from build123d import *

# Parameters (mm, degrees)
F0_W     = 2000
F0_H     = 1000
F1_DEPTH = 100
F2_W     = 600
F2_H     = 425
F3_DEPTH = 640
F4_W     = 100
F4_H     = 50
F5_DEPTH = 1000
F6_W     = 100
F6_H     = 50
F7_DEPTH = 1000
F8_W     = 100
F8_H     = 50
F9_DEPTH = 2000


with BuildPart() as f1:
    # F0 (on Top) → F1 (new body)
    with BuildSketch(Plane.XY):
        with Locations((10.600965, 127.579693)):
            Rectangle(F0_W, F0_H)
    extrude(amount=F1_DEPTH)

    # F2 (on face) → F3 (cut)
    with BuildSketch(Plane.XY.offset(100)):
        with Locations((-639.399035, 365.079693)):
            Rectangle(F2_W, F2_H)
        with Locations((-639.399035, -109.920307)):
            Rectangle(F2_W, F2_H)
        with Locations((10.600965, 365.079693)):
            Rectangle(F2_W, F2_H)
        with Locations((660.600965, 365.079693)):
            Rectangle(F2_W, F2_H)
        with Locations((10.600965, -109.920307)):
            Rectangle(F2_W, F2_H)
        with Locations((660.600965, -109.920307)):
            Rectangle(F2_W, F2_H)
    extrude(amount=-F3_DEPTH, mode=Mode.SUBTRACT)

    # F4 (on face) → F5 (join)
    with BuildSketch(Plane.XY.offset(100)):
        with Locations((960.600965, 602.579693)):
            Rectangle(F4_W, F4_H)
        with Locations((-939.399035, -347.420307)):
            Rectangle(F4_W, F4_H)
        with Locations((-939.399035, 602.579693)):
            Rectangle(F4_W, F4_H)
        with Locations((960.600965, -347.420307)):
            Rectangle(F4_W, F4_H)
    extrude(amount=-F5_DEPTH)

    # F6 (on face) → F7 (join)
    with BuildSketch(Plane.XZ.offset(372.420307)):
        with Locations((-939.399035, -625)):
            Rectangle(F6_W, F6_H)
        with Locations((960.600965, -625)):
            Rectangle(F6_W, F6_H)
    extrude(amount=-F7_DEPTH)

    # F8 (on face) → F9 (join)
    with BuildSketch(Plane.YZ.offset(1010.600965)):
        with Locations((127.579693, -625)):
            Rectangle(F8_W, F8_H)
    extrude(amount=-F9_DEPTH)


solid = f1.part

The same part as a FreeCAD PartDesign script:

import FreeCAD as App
import Part
import Sketcher

V = App.Vector
Q = App.Units.Quantity

doc = App.newDocument("Part")
body = doc.addObject("PartDesign::Body", "Body")

# Sketch on XY plane
sketch1 = body.newObject("Sketcher::SketchObject", "Sketch")
sketch1.AttachmentSupport = (doc.getObject("XY_Plane"), [""])
sketch1.MapMode = "FlatFace"
sketch1.addGeometry([
    Part.LineSegment(V(-989, 628, 0), V(-989, -372, 0)),
    Part.LineSegment(V(-989, -372, 0), V(1011, -372, 0)),
    Part.LineSegment(V(1011, -372, 0), V(1011, 628, 0)),
    Part.LineSegment(V(1011, 628, 0), V(-989, 628, 0)),
], False)
sketch1.addConstraint([
    Sketcher.Constraint("Coincident", 0, 2, 1, 1),
    Sketcher.Constraint("Coincident", 1, 2, 2, 1),
    Sketcher.Constraint("Coincident", 2, 2, 3, 1),
    Sketcher.Constraint("Coincident", 3, 2, 0, 1),
    Sketcher.Constraint("Vertical", 0),
    Sketcher.Constraint("Horizontal", 1),
    Sketcher.Constraint("Vertical", 2),
    Sketcher.Constraint("Horizontal", 3),
    Sketcher.Constraint("DistanceX", 1, 1, 1, 2, Q("2000 mm")),
    Sketcher.Constraint("DistanceY", 0, 2, 0, 1, Q("1000 mm")),
    Sketcher.Constraint("DistanceX", 0, 2, -1, 1, Q("989.399035 mm")),
    Sketcher.Constraint("DistanceY", 0, 2, -1, 1, Q("372.420307 mm")),
])
pad1 = body.newObject("PartDesign::Pad", "Pad")
pad1.Profile = sketch1
pad1.Length = 100

# Sketch on XY plane
sketch2 = body.newObject("Sketcher::SketchObject", "Sketch001")
sketch2.AttachmentSupport = (doc.getObject("XY_Plane"), [""])
sketch2.MapMode = "FlatFace"
sketch2.AttachmentOffset = App.Placement(V(0, 0, 100), App.Rotation())
sketch2.addGeometry([
    Part.LineSegment(V(-939, 578, 0), V(-939, 153, 0)),  # 0
    Part.LineSegment(V(-939, 153, 0), V(-339, 153, 0)),  # 1
    Part.LineSegment(V(-339, 153, 0), V(-339, 578, 0)),  # 2
    Part.LineSegment(V(-339, 578, 0), V(-939, 578, 0)),  # 3
    Part.LineSegment(V(-939, 103, 0), V(-939, -322, 0)),  # 4
    Part.LineSegment(V(-939, -322, 0), V(-339, -322, 0)),  # 5
    Part.LineSegment(V(-339, -322, 0), V(-339, 103, 0)),  # 6
    Part.LineSegment(V(-339, 103, 0), V(-939, 103, 0)),  # 7
    Part.LineSegment(V(-289, 578, 0), V(-289, 153, 0)),  # 8
    Part.LineSegment(V(-289, 153, 0), V(311, 153, 0)),  # 9
    Part.LineSegment(V(311, 153, 0), V(311, 578, 0)),  # 10
    Part.LineSegment(V(311, 578, 0), V(-289, 578, 0)),  # 11
    Part.LineSegment(V(361, 578, 0), V(361, 153, 0)),  # 12
    Part.LineSegment(V(361, 153, 0), V(961, 153, 0)),  # 13
    Part.LineSegment(V(961, 153, 0), V(961, 578, 0)),  # 14
    Part.LineSegment(V(961, 578, 0), V(361, 578, 0)),  # 15
    Part.LineSegment(V(-289, 103, 0), V(-289, -322, 0)),  # 16
    Part.LineSegment(V(-289, -322, 0), V(311, -322, 0)),  # 17
    Part.LineSegment(V(311, -322, 0), V(311, 103, 0)),  # 18
    Part.LineSegment(V(311, 103, 0), V(-289, 103, 0)),  # 19
    Part.LineSegment(V(361, 103, 0), V(361, -322, 0)),  # 20
    Part.LineSegment(V(361, -322, 0), V(961, -322, 0)),  # 21
    Part.LineSegment(V(961, -322, 0), V(961, 103, 0)),  # 22
    Part.LineSegment(V(961, 103, 0), V(361, 103, 0)),  # 23
], False)
sketch2.addConstraint([
    Sketcher.Constraint("Coincident", 0, 2, 1, 1),
    Sketcher.Constraint("Coincident", 1, 2, 2, 1),
    Sketcher.Constraint("Coincident", 2, 2, 3, 1),
    Sketcher.Constraint("Coincident", 3, 2, 0, 1),
    Sketcher.Constraint("Coincident", 4, 2, 5, 1),
    Sketcher.Constraint("Coincident", 5, 2, 6, 1),
    Sketcher.Constraint("Coincident", 6, 2, 7, 1),
    Sketcher.Constraint("Coincident", 7, 2, 4, 1),
    Sketcher.Constraint("Coincident", 8, 2, 9, 1),
    Sketcher.Constraint("Coincident", 9, 2, 10, 1),
    Sketcher.Constraint("Coincident", 10, 2, 11, 1),
    Sketcher.Constraint("Coincident", 11, 2, 8, 1),
    Sketcher.Constraint("Coincident", 12, 2, 13, 1),
    Sketcher.Constraint("Coincident", 13, 2, 14, 1),
    Sketcher.Constraint("Coincident", 14, 2, 15, 1),
    Sketcher.Constraint("Coincident", 15, 2, 12, 1),
    Sketcher.Constraint("Coincident", 16, 2, 17, 1),
    Sketcher.Constraint("Coincident", 17, 2, 18, 1),
    Sketcher.Constraint("Coincident", 18, 2, 19, 1),
    Sketcher.Constraint("Coincident", 19, 2, 16, 1),
    Sketcher.Constraint("Coincident", 20, 2, 21, 1),
    Sketcher.Constraint("Coincident", 21, 2, 22, 1),
    Sketcher.Constraint("Coincident", 22, 2, 23, 1),
    Sketcher.Constraint("Coincident", 23, 2, 20, 1),
    Sketcher.Constraint("Vertical", 0),
    Sketcher.Constraint("Horizontal", 1),
    Sketcher.Constraint("Vertical", 2),
    Sketcher.Constraint("Horizontal", 3),
    Sketcher.Constraint("Vertical", 4),
    Sketcher.Constraint("Horizontal", 5),
    Sketcher.Constraint("Vertical", 6),
    Sketcher.Constraint("Horizontal", 7),
    Sketcher.Constraint("Vertical", 8),
    Sketcher.Constraint("Horizontal", 9),
    Sketcher.Constraint("Vertical", 10),
    Sketcher.Constraint("Horizontal", 11),
    Sketcher.Constraint("Vertical", 12),
    Sketcher.Constraint("Horizontal", 13),
    Sketcher.Constraint("Vertical", 14),
    Sketcher.Constraint("Horizontal", 15),
    Sketcher.Constraint("Vertical", 16),
    Sketcher.Constraint("Horizontal", 17),
    Sketcher.Constraint("Vertical", 18),
    Sketcher.Constraint("Horizontal", 19),
    Sketcher.Constraint("Vertical", 20),
    Sketcher.Constraint("Horizontal", 21),
    Sketcher.Constraint("Vertical", 22),
    Sketcher.Constraint("Horizontal", 23),
    Sketcher.Constraint("Horizontal", 1, 2, 8, 2),
    Sketcher.Constraint("Horizontal", 3, 2, 10, 2),
    Sketcher.Constraint("Horizontal", 9, 2, 12, 2),
    Sketcher.Constraint("Horizontal", 11, 2, 14, 2),
    Sketcher.Constraint("Horizontal", 5, 2, 16, 2),
    Sketcher.Constraint("Horizontal", 7, 2, 18, 2),
    Sketcher.Constraint("Horizontal", 17, 2, 20, 2),
    Sketcher.Constraint("Horizontal", 19, 2, 22, 2),
    Sketcher.Constraint("Vertical", 3, 2, 4, 2),
    Sketcher.Constraint("Vertical", 2, 2, 5, 2),
    Sketcher.Constraint("Vertical", 11, 2, 16, 2),
    Sketcher.Constraint("Vertical", 10, 2, 17, 2),
    Sketcher.Constraint("Vertical", 15, 2, 20, 2),
    Sketcher.Constraint("Vertical", 14, 2, 21, 2),
    Sketcher.Constraint("Equal", 7, 9),
    Sketcher.Constraint("Equal", 11, 13),
    Sketcher.Constraint("Equal", 2, 4),
    Sketcher.Constraint("DistanceX", 1, 1, 1, 2, Q("600 mm")),
    Sketcher.Constraint("DistanceY", 0, 2, 0, 1, Q("425 mm")),
    Sketcher.Constraint("DistanceY", 4, 2, 0, 2, Q("475 mm")),
    Sketcher.Constraint("DistanceX", 1, 2, 8, 2, Q("50 mm")),
    Sketcher.Constraint("DistanceX", 9, 2, 12, 2, Q("50 mm")),
    Sketcher.Constraint("DistanceX", 0, 2, -1, 1, Q("939.399035 mm")),
    Sketcher.Constraint("DistanceY", -1, 1, 0, 2, Q("152.579693 mm")),
])
pocket1 = body.newObject("PartDesign::Pocket", "Pocket")
pocket1.Profile = sketch2
pocket1.Length = 640

# Sketch on XY plane
sketch3 = body.newObject("Sketcher::SketchObject", "Sketch002")
sketch3.AttachmentSupport = (doc.getObject("XY_Plane"), [""])
sketch3.MapMode = "FlatFace"
sketch3.AttachmentOffset = App.Placement(V(0, 0, 100), App.Rotation())
sketch3.addGeometry([
    Part.LineSegment(V(911, 628, 0), V(911, 578, 0)),  # 0
    Part.LineSegment(V(911, 578, 0), V(1011, 578, 0)),  # 1
    Part.LineSegment(V(1011, 578, 0), V(1011, 628, 0)),  # 2
    Part.LineSegment(V(1011, 628, 0), V(911, 628, 0)),  # 3
    Part.LineSegment(V(-989, -322, 0), V(-989, -372, 0)),  # 4
    Part.LineSegment(V(-989, -372, 0), V(-889, -372, 0)),  # 5
    Part.LineSegment(V(-889, -372, 0), V(-889, -322, 0)),  # 6
    Part.LineSegment(V(-889, -322, 0), V(-989, -322, 0)),  # 7
    Part.LineSegment(V(-989, 628, 0), V(-989, 578, 0)),  # 8
    Part.LineSegment(V(-989, 578, 0), V(-889, 578, 0)),  # 9
    Part.LineSegment(V(-889, 578, 0), V(-889, 628, 0)),  # 10
    Part.LineSegment(V(-889, 628, 0), V(-989, 628, 0)),  # 11
    Part.LineSegment(V(911, -322, 0), V(911, -372, 0)),  # 12
    Part.LineSegment(V(911, -372, 0), V(1011, -372, 0)),  # 13
    Part.LineSegment(V(1011, -372, 0), V(1011, -322, 0)),  # 14
    Part.LineSegment(V(1011, -322, 0), V(911, -322, 0)),  # 15
], False)
sketch3.addConstraint([
    Sketcher.Constraint("Coincident", 0, 2, 1, 1),
    Sketcher.Constraint("Coincident", 1, 2, 2, 1),
    Sketcher.Constraint("Coincident", 2, 2, 3, 1),
    Sketcher.Constraint("Coincident", 3, 2, 0, 1),
    Sketcher.Constraint("Coincident", 4, 2, 5, 1),
    Sketcher.Constraint("Coincident", 5, 2, 6, 1),
    Sketcher.Constraint("Coincident", 6, 2, 7, 1),
    Sketcher.Constraint("Coincident", 7, 2, 4, 1),
    Sketcher.Constraint("Coincident", 8, 2, 9, 1),
    Sketcher.Constraint("Coincident", 9, 2, 10, 1),
    Sketcher.Constraint("Coincident", 10, 2, 11, 1),
    Sketcher.Constraint("Coincident", 11, 2, 8, 1),
    Sketcher.Constraint("Coincident", 12, 2, 13, 1),
    Sketcher.Constraint("Coincident", 13, 2, 14, 1),
    Sketcher.Constraint("Coincident", 14, 2, 15, 1),
    Sketcher.Constraint("Coincident", 15, 2, 12, 1),
    Sketcher.Constraint("Vertical", 0),
    Sketcher.Constraint("Horizontal", 1),
    Sketcher.Constraint("Vertical", 2),
    Sketcher.Constraint("Horizontal", 3),
    Sketcher.Constraint("Vertical", 4),
    Sketcher.Constraint("Horizontal", 5),
    Sketcher.Constraint("Vertical", 6),
    Sketcher.Constraint("Horizontal", 7),
    Sketcher.Constraint("Vertical", 8),
    Sketcher.Constraint("Horizontal", 9),
    Sketcher.Constraint("Vertical", 10),
    Sketcher.Constraint("Horizontal", 11),
    Sketcher.Constraint("Vertical", 12),
    Sketcher.Constraint("Horizontal", 13),
    Sketcher.Constraint("Vertical", 14),
    Sketcher.Constraint("Horizontal", 15),
    Sketcher.Constraint("Horizontal", 1, 2, 8, 2),
    Sketcher.Constraint("Horizontal", 3, 2, 10, 2),
    Sketcher.Constraint("Horizontal", 5, 2, 12, 2),
    Sketcher.Constraint("Horizontal", 7, 2, 14, 2),
    Sketcher.Constraint("Vertical", 7, 2, 8, 2),
    Sketcher.Constraint("Vertical", 6, 2, 9, 2),
    Sketcher.Constraint("Vertical", 3, 2, 12, 2),
    Sketcher.Constraint("Vertical", 2, 2, 13, 2),
    Sketcher.Constraint("Equal", 3, 5),
    Sketcher.Constraint("Equal", 2, 4),
    Sketcher.Constraint("DistanceX", 1, 1, 1, 2, Q("100 mm")),
    Sketcher.Constraint("DistanceY", 0, 2, 0, 1, Q("50 mm")),
    Sketcher.Constraint("DistanceX", 4, 2, 0, 2, Q("1900 mm")),
    Sketcher.Constraint("DistanceY", 4, 2, 0, 2, Q("950 mm")),
    Sketcher.Constraint("DistanceX", -1, 1, 0, 2, Q("910.600965 mm")),
    Sketcher.Constraint("DistanceY", -1, 1, 0, 2, Q("577.579693 mm")),
])
pad2 = body.newObject("PartDesign::Pad", "Pad001")
pad2.Profile = sketch3
pad2.Length = 1000
pad2.Reversed = True

# Sketch on XZ plane
sketch4 = body.newObject("Sketcher::SketchObject", "Sketch003")
sketch4.AttachmentSupport = (doc.getObject("XZ_Plane"), [""])
sketch4.MapMode = "FlatFace"
sketch4.AttachmentOffset = App.Placement(V(0, 0, 372.420307), App.Rotation())
sketch4.addGeometry([
    Part.LineSegment(V(-989, -600, 0), V(-989, -650, 0)),  # 0
    Part.LineSegment(V(-989, -650, 0), V(-889, -650, 0)),  # 1
    Part.LineSegment(V(-889, -650, 0), V(-889, -600, 0)),  # 2
    Part.LineSegment(V(-889, -600, 0), V(-989, -600, 0)),  # 3
    Part.LineSegment(V(911, -600, 0), V(911, -650, 0)),  # 4
    Part.LineSegment(V(911, -650, 0), V(1011, -650, 0)),  # 5
    Part.LineSegment(V(1011, -650, 0), V(1011, -600, 0)),  # 6
    Part.LineSegment(V(1011, -600, 0), V(911, -600, 0)),  # 7
], False)
sketch4.addConstraint([
    Sketcher.Constraint("Coincident", 0, 2, 1, 1),
    Sketcher.Constraint("Coincident", 1, 2, 2, 1),
    Sketcher.Constraint("Coincident", 2, 2, 3, 1),
    Sketcher.Constraint("Coincident", 3, 2, 0, 1),
    Sketcher.Constraint("Coincident", 4, 2, 5, 1),
    Sketcher.Constraint("Coincident", 5, 2, 6, 1),
    Sketcher.Constraint("Coincident", 6, 2, 7, 1),
    Sketcher.Constraint("Coincident", 7, 2, 4, 1),
    Sketcher.Constraint("Vertical", 0),
    Sketcher.Constraint("Horizontal", 1),
    Sketcher.Constraint("Vertical", 2),
    Sketcher.Constraint("Horizontal", 3),
    Sketcher.Constraint("Vertical", 4),
    Sketcher.Constraint("Horizontal", 5),
    Sketcher.Constraint("Vertical", 6),
    Sketcher.Constraint("Horizontal", 7),
    Sketcher.Constraint("Horizontal", 1, 2, 4, 2),
    Sketcher.Constraint("Horizontal", 3, 2, 6, 2),
    Sketcher.Constraint("Equal", 3, 5),
    Sketcher.Constraint("DistanceX", 1, 1, 1, 2, Q("100 mm")),
    Sketcher.Constraint("DistanceY", 0, 2, 0, 1, Q("50 mm")),
    Sketcher.Constraint("DistanceY", 0, 2, -1, 1, Q("650 mm")),
    Sketcher.Constraint("DistanceX", 1, 2, 4, 2, Q("1800 mm")),
    Sketcher.Constraint("DistanceX", 0, 2, -1, 1, Q("989.399035 mm")),
])
pad3 = body.newObject("PartDesign::Pad", "Pad002")
pad3.Profile = sketch4
pad3.Length = 1000
pad3.Reversed = True

# Sketch on YZ plane
sketch5 = body.newObject("Sketcher::SketchObject", "Sketch004")
sketch5.AttachmentSupport = (doc.getObject("YZ_Plane"), [""])
sketch5.MapMode = "FlatFace"
sketch5.AttachmentOffset = App.Placement(V(0, 0, 1010.600965), App.Rotation())
sketch5.addGeometry([
    Part.LineSegment(V(78, -600, 0), V(78, -650, 0)),
    Part.LineSegment(V(78, -650, 0), V(178, -650, 0)),
    Part.LineSegment(V(178, -650, 0), V(178, -600, 0)),
    Part.LineSegment(V(178, -600, 0), V(78, -600, 0)),
], False)
sketch5.addConstraint([
    Sketcher.Constraint("Coincident", 0, 2, 1, 1),
    Sketcher.Constraint("Coincident", 1, 2, 2, 1),
    Sketcher.Constraint("Coincident", 2, 2, 3, 1),
    Sketcher.Constraint("Coincident", 3, 2, 0, 1),
    Sketcher.Constraint("Vertical", 0),
    Sketcher.Constraint("Horizontal", 1),
    Sketcher.Constraint("Vertical", 2),
    Sketcher.Constraint("Horizontal", 3),
    Sketcher.Constraint("DistanceX", 1, 1, 1, 2, Q("100 mm")),
    Sketcher.Constraint("DistanceY", 0, 2, 0, 1, Q("50 mm")),
    Sketcher.Constraint("DistanceY", 0, 2, -1, 1, Q("650 mm")),
    Sketcher.Constraint("DistanceX", -1, 1, 0, 2, Q("77.579693 mm")),
])
pad4 = body.newObject("PartDesign::Pad", "Pad003")
pad4.Profile = sketch5
pad4.Length = 2000
pad4.Reversed = True

doc.recompute()
